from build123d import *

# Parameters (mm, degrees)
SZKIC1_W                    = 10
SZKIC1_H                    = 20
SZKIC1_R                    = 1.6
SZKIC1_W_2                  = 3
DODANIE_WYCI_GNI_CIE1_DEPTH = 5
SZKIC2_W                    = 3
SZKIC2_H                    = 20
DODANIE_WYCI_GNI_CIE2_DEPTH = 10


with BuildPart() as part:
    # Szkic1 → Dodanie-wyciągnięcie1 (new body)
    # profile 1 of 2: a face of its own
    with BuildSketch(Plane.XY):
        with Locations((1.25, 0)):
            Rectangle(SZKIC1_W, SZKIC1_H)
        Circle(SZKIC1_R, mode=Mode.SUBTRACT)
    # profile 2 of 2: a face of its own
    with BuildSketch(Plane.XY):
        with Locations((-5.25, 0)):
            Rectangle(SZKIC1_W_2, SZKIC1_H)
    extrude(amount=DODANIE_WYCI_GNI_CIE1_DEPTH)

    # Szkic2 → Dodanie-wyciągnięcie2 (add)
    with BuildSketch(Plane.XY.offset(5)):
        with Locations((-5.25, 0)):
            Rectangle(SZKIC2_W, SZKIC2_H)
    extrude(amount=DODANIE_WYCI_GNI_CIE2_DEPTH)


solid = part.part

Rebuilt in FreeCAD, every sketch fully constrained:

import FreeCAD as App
import Part
import Sketcher
from FreeCAD import Vector


def add_polygon(sketch, points):
    """Adds a closed chain of lines whose ends are joined by coincident constraints."""
    first, n = sketch.GeometryCount, len(points)
    for a, b in zip(points, points[1:] + points[:1]):
        sketch.addGeometry(Part.LineSegment(App.Vector(*a, 0), App.Vector(*b, 0)), False)
    for i in range(n):
        sketch.addConstraint(Sketcher.Constraint("Coincident", first + i, 2, first + (i + 1) % n, 1))

doc = App.newDocument("Part")
params = doc.addObject("Spreadsheet::Sheet", "Params")
for row, (alias, value) in enumerate([
    ("sketch1_diameter", "3.2 mm"),
    ("sketch1_width", "13 mm"),
    ("sketch1_height", "20 mm"),
    ("pad1_length", "5 mm"),
    ("sketch2_width", "3 mm"),
    ("sketch2_height", "20 mm"),
    ("pad2_length", "10 mm"),
], start=1):
    params.set(f"A{row}", alias)
    params.set(f"B{row}", "=" + value)
    params.setAlias(f"B{row}", alias)

body = doc.addObject("PartDesign::Body", "Body")

# Sketch on XY plane
sketch1 = body.newObject("Sketcher::SketchObject", "Sketch")
sketch1.AttachmentSupport = (doc.getObject("XY_Plane"), [""])
sketch1.MapMode = "FlatFace"
add_polygon(sketch1, [(6.2, -10), (6.2, 10), (-6.8, 10), (-6.8, -10)])  # lines 0-3
sketch1.addGeometry(Part.Circle(Vector(0, 0, 0), Vector(0, 0, 1), 1.6), False)  # 4
sketch1.addConstraint([
    Sketcher.Constraint("Vertical", 0),
    Sketcher.Constraint("Horizontal", 1),
    Sketcher.Constraint("Vertical", 2),
    Sketcher.Constraint("Horizontal", 3),
    Sketcher.Constraint("Coincident", 4, 3, -1, 1),
    Sketcher.Constraint("Diameter", 4, 3.2),
    Sketcher.Constraint("DistanceX", 1, 2, 1, 1, 13.0),
    Sketcher.Constraint("DistanceY", 0, 1, 0, 2, 20.0),
    Sketcher.Constraint("DistanceY", -1, 1, 0, 2, 10.0),
    Sketcher.Constraint("DistanceX", -1, 1, 0, 2, 6.25),
])
sketch1.setExpression("Constraints[9]", "Params.sketch1_diameter")
sketch1.setExpression("Constraints[10]", "Params.sketch1_width")
sketch1.setExpression("Constraints[11]", "Params.sketch1_height")
pad1 = body.newObject("PartDesign::Pad", "Pad")
pad1.Profile = sketch1
pad1.setExpression("Length", "Params.pad1_length")

# Sketch on XY plane
sketch2 = body.newObject("Sketcher::SketchObject", "Sketch001")
sketch2.AttachmentSupport = (doc.getObject("XY_Plane"), [""])
sketch2.MapMode = "FlatFace"
sketch2.AttachmentOffset = App.Placement(Vector(0, 0, 5), App.Rotation())
add_polygon(sketch2, [(-6.8, 10), (-6.8, -10), (-3.8, -10), (-3.8, 10)])  # lines 0-3
sketch2.addConstraint([
    Sketcher.Constraint("Vertical", 0),
    Sketcher.Constraint("Horizontal", 1),
    Sketcher.Constraint("Vertical", 2),
    Sketcher.Constraint("Horizontal", 3),
    Sketcher.Constraint("DistanceX", 1, 1, 1, 2, 3.0),
    Sketcher.Constraint("DistanceY", 0, 2, 0, 1, 20.0),
    Sketcher.Constraint("DistanceY", 0, 2, -1, 1, 10.0),
    Sketcher.Constraint("DistanceX", 0, 2, -1, 1, 6.75),
])
sketch2.setExpression("Constraints[8]", "Params.sketch2_width")
sketch2.setExpression("Constraints[9]", "Params.sketch2_height")
pad2 = body.newObject("PartDesign::Pad", "Pad001")
pad2.Profile = sketch2
pad2.setExpression("Length", "Params.pad2_length")

doc.recompute()
